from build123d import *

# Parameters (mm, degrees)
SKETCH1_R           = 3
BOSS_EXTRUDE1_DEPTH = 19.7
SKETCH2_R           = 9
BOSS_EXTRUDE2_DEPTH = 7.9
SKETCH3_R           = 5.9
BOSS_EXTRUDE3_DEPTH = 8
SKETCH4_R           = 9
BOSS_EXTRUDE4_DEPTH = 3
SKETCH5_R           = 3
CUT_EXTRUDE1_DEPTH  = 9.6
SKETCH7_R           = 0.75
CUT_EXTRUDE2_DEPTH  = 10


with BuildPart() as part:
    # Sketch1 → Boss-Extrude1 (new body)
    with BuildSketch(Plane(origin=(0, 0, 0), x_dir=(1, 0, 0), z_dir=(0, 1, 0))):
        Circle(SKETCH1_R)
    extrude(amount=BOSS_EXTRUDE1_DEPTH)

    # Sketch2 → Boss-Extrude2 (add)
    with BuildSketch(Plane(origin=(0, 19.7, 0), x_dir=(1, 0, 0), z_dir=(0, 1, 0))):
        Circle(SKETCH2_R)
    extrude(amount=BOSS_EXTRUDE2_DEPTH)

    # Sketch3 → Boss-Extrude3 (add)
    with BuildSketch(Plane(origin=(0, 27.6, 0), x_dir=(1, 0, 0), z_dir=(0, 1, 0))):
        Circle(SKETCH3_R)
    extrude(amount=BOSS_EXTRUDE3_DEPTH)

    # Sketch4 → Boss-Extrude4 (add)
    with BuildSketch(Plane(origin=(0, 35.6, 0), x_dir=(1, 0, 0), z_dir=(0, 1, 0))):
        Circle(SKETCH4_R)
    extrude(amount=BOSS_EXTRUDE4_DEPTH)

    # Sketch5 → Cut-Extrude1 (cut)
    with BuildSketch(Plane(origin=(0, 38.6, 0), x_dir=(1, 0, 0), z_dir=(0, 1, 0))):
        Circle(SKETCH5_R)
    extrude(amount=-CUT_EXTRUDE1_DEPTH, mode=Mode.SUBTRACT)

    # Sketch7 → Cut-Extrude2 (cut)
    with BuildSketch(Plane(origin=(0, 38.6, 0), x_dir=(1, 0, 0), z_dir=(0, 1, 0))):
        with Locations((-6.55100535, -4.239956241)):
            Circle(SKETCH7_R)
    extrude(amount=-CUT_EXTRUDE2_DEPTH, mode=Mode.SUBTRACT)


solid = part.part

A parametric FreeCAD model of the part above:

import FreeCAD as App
import Part
import Sketcher

V = App.Vector

doc = App.newDocument("Part")
params = doc.addObject("Spreadsheet::Sheet", "Params")
for row, (alias, value) in enumerate([
    ("sketch1_diameter", "6 mm"),
    ("pad1_length", "19.7 mm"),
    ("sketch2_diameter", "18 mm"),
    ("pad2_length", "7.9 mm"),
    ("sketch3_diameter", "11.8 mm"),
    ("pad3_length", "8 mm"),
    ("sketch4_diameter", "18 mm"),
    ("pad4_length", "3 mm"),
    ("sketch5_diameter", "6 mm"),
    ("pocket1_length", "9.6 mm"),
    ("sketch6_diameter", "1.5 mm"),
    ("pocket2_length", "10 mm"),
], start=1):
    params.set(f"A{row}", alias)
    params.set(f"B{row}", "=" + value)
    params.setAlias(f"B{row}", alias)

body = doc.addObject("PartDesign::Body", "Body")

# Sketch on XZ plane
sketch1 = body.newObject("Sketcher::SketchObject", "Sketch")
sketch1.AttachmentSupport = (doc.getObject("XZ_Plane"), [""])
sketch1.MapMode = "FlatFace"
sketch1.addGeometry(Part.Circle(V(0, 0, 0), V(0, 0, 1), 3), False)
sketch1.addConstraint([
    Sketcher.Constraint("Coincident", 0, 3, -1, 1),
    Sketcher.Constraint("Diameter", 0, 6.0),
])
sketch1.setExpression("Constraints[1]", "Params.sketch1_diameter")
pad1 = body.newObject("PartDesign::Pad", "Pad")
pad1.Profile = sketch1
pad1.setExpression("Length", "Params.pad1_length")
pad1.Reversed = True

# Sketch on XZ plane
sketch2 = body.newObject("Sketcher::SketchObject", "Sketch001")
sketch2.AttachmentSupport = (doc.getObject("XZ_Plane"), [""])
sketch2.MapMode = "FlatFace"
sketch2.AttachmentOffset = App.Placement(V(0, 0, -19.7), App.Rotation())
sketch2.addGeometry(Part.Circle(V(0, 0, 0), V(0, 0, 1), 9), False)
sketch2.addConstraint([
    Sketcher.Constraint("Coincident", 0, 3, -1, 1),
    Sketcher.Constraint("Diameter", 0, 18.0),
])
sketch2.setExpression("Constraints[1]", "Params.sketch2_diameter")
pad2 = body.newObject("PartDesign::Pad", "Pad001")
pad2.Profile = sketch2
pad2.setExpression("Length", "Params.pad2_length")
pad2.Reversed = True

# Sketch on XZ plane
sketch3 = body.newObject("Sketcher::SketchObject", "Sketch002")
sketch3.AttachmentSupport = (doc.getObject("XZ_Plane"), [""])
sketch3.MapMode = "FlatFace"
sketch3.AttachmentOffset = App.Placement(V(0, 0, -27.6), App.Rotation())
sketch3.addGeometry(Part.Circle(V(0, 0, 0), V(0, 0, 1), 5.9), False)
sketch3.addConstraint([
    Sketcher.Constraint("Coincident", 0, 3, -1, 1),
    Sketcher.Constraint("Diameter", 0, 11.8),
])
sketch3.setExpression("Constraints[1]", "Params.sketch3_diameter")
pad3 = body.newObject("PartDesign::Pad", "Pad002")
pad3.Profile = sketch3
pad3.setExpression("Length", "Params.pad3_length")
pad3.Reversed = True

# Sketch on XZ plane
sketch4 = body.newObject("Sketcher::SketchObject", "Sketch003")
sketch4.AttachmentSupport = (doc.getObject("XZ_Plane"), [""])
sketch4.MapMode = "FlatFace"
sketch4.AttachmentOffset = App.Placement(V(0, 0, -35.6), App.Rotation())
sketch4.addGeometry(Part.Circle(V(0, 0, 0), V(0, 0, 1), 9), False)
sketch4.addConstraint([
    Sketcher.Constraint("Coincident", 0, 3, -1, 1),
    Sketcher.Constraint("Diameter", 0, 18.0),
])
sketch4.setExpression("Constraints[1]", "Params.sketch4_diameter")
pad4 = body.newObject("PartDesign::Pad", "Pad003")
pad4.Profile = sketch4
pad4.setExpression("Length", "Params.pad4_length")
pad4.Reversed = True

# Sketch on XZ plane
sketch5 = body.newObject("Sketcher::SketchObject", "Sketch004")
sketch5.AttachmentSupport = (doc.getObject("XZ_Plane"), [""])
sketch5.MapMode = "FlatFace"
sketch5.AttachmentOffset = App.Placement(V(0, 0, -38.6), App.Rotation())
sketch5.addGeometry(Part.Circle(V(0, 0, 0), V(0, 0, 1), 3), False)
sketch5.addConstraint([
    Sketcher.Constraint("Coincident", 0, 3, -1, 1),
    Sketcher.Constraint("Diameter", 0, 6.0),
])
sketch5.setExpression("Constraints[1]", "Params.sketch5_diameter")
pocket1 = body.newObject("PartDesign::Pocket", "Pocket")
pocket1.Profile = sketch5
pocket1.setExpression("Length", "Params.pocket1_length")
pocket1.Reversed = True

# Sketch on XZ plane
sketch6 = body.newObject("Sketcher::SketchObject", "Sketch005")
sketch6.AttachmentSupport = (doc.getObject("XZ_Plane"), [""])
sketch6.MapMode = "FlatFace"
sketch6.AttachmentOffset = App.Placement(V(0, 0, -38.6), App.Rotation())
sketch6.addGeometry(Part.Circle(V(-6.551005, 4.239956, 0), V(0, 0, 1), 0.75), False)
sketch6.addConstraint([
    Sketcher.Constraint("Diameter", 0, 1.5),
    Sketcher.Constraint("DistanceX", 0, 3, -1, 1, 6.551005),
    Sketcher.Constraint("DistanceY", -1, 1, 0, 3, 4.239956),
])
sketch6.setExpression("Constraints[0]", "Params.sketch6_diameter")
pocket2 = body.newObject("PartDesign::Pocket", "Pocket001")
pocket2.Profile = sketch6
pocket2.setExpression("Length", "Params.pocket2_length")
pocket2.Reversed = True

doc.recompute()
